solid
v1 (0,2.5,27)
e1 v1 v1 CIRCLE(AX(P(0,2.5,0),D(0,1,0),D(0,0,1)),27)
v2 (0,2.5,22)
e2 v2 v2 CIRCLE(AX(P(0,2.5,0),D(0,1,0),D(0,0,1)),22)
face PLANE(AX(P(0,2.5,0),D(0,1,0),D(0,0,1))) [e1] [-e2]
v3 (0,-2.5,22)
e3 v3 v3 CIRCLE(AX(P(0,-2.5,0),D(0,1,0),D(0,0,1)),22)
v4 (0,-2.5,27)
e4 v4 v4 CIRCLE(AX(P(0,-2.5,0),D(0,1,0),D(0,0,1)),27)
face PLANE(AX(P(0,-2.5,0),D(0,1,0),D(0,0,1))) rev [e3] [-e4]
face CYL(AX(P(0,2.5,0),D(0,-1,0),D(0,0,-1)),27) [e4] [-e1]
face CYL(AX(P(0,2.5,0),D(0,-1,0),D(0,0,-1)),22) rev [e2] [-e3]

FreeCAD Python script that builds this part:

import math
import FreeCAD as App
import Part
import Sketcher
Q = App.Units.Quantity

doc = App.newDocument("Part")
params = doc.addObject("Spreadsheet::Sheet", "Params")
for row, (alias, value) in enumerate([
    ("sketch1_diameter", "44 mm"),
    ("sketch1_radius", "27 mm"),
    ("pad1_length", "5 mm"),
], start=1):
    params.set(f"A{row}", alias)
    params.set(f"B{row}", "=" + value)
    params.setAlias(f"B{row}", alias)

body = doc.addObject("PartDesign::Body", "Body")

sketch1 = body.newObject("Sketcher::SketchObject", "Sketch")
sketch1.AttachmentSupport = (doc.getObject("XZ_Plane"), [""])
sketch1.MapMode = "FlatFace"
sketch1.addGeometry([
    Part.ArcOfCircle(Part.Circle(App.Vector(0, 0, 0), App.Vector(0, 0, 1), 27), math.radians(88), math.radians(272)),
    Part.ArcOfCircle(Part.Circle(App.Vector(0, 0, 0), App.Vector(0, 0, 1), 27), math.radians(-88), math.radians(88)),
    Part.Circle(App.Vector(0, 0, 0), App.Vector(0, 0, 1), 22),
], False)
sketch1.addConstraint([
    Sketcher.Constraint("Tangent", 0, 1, 1, 2),
    Sketcher.Constraint("Coincident", 1, 1, 0, 2),
    Sketcher.Constraint("Coincident", 0, 3, -1, 1),
    Sketcher.Constraint("Coincident", 2, 3, -1, 1),
    Sketcher.Constraint("Vertical", 0, 1, 1, 1),
    Sketcher.Constraint("Diameter", 2, Q("44 mm")),
    Sketcher.Constraint("Radius", 0, Q("27 mm")),
    Sketcher.Constraint("DistanceX", -1, 1, 0, 1, Q("0.892562 mm")),
])
sketch1.setExpression("Constraints[5]", "Params.sketch1_diameter")
sketch1.setExpression("Constraints[6]", "Params.sketch1_radius")
pad1 = body.newObject("PartDesign::Pad", "Pad")
pad1.Profile = sketch1
pad1.setExpression("Length", "Params.pad1_length")
pad1.Midplane = True

doc.recompute()
